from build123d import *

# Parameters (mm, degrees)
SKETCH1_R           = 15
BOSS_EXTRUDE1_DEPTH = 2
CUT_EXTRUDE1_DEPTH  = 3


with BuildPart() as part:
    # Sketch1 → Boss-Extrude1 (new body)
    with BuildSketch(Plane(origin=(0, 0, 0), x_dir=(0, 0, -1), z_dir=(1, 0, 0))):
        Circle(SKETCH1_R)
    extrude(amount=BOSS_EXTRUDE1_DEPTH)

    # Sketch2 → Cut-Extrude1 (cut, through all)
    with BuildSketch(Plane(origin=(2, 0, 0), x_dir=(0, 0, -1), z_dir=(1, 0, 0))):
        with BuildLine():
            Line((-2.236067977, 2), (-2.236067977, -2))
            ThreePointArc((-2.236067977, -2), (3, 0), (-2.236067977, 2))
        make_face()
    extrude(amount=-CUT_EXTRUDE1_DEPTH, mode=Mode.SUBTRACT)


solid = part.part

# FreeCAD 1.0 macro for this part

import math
import FreeCAD as App
import Part
import Sketcher
from FreeCAD import Vector
Q = App.Units.Quantity

doc = App.newDocument("Part")
body = doc.addObject("PartDesign::Body", "Body")

# Sketch on YZ plane
sketch1 = doc.addObject("Sketcher::SketchObject", "Sketch")
body.addObject(sketch1)
sketch1.AttachmentSupport = (doc.YZ_Plane, [""])
sketch1.MapMode = "FlatFace"
sketch1.addGeometry(Part.Circle(Vector(0, 0, 0), Vector(0, 0, 1), 15), False)
sketch1.addConstraint(Sketcher.Constraint("Coincident", 0, 3, -1, 1))
sketch1.addConstraint(Sketcher.Constraint("Diameter", 0, Q("30 mm")))
pad1 = doc.addObject("PartDesign::Pad", "Pad")
body.addObject(pad1)
pad1.Profile = sketch1
pad1.Length = 2

# Sketch on YZ plane
sketch2 = doc.addObject("Sketcher::SketchObject", "Sketch001")
body.addObject(sketch2)
sketch2.AttachmentSupport = (doc.YZ_Plane, [""])
sketch2.MapMode = "FlatFace"
sketch2.AttachmentOffset = App.Placement(Vector(0, 0, 2), App.Rotation())
sketch2.addGeometry(Part.LineSegment(Vector(2, 2.236068, 0), Vector(-2, 2.236068, 0)), False)
sketch2.addGeometry(Part.ArcOfCircle(Part.Circle(Vector(0, 0, 0), Vector(0, 0, 1), 3), math.radians(131.810315), math.radians(408.189685)), False)
sketch2.addConstraint(Sketcher.Constraint("Coincident", 0, 1, 1, 2))
sketch2.addConstraint(Sketcher.Constraint("Coincident", 1, 1, 0, 2))
sketch2.addConstraint(Sketcher.Constraint("Horizontal", 0))
sketch2.addConstraint(Sketcher.Constraint("Coincident", 1, 3, -1, 1))
sketch2.addConstraint(Sketcher.Constraint("Radius", 1, Q("3 mm")))
sketch2.addConstraint(Sketcher.Constraint("DistanceX", 0, 2, 0, 1, Q("4 mm")))
pocket1 = doc.addObject("PartDesign::Pocket", "Pocket")
body.addObject(pocket1)
pocket1.Profile = sketch2
pocket1.Type = "ThroughAll"

doc.recompute()
